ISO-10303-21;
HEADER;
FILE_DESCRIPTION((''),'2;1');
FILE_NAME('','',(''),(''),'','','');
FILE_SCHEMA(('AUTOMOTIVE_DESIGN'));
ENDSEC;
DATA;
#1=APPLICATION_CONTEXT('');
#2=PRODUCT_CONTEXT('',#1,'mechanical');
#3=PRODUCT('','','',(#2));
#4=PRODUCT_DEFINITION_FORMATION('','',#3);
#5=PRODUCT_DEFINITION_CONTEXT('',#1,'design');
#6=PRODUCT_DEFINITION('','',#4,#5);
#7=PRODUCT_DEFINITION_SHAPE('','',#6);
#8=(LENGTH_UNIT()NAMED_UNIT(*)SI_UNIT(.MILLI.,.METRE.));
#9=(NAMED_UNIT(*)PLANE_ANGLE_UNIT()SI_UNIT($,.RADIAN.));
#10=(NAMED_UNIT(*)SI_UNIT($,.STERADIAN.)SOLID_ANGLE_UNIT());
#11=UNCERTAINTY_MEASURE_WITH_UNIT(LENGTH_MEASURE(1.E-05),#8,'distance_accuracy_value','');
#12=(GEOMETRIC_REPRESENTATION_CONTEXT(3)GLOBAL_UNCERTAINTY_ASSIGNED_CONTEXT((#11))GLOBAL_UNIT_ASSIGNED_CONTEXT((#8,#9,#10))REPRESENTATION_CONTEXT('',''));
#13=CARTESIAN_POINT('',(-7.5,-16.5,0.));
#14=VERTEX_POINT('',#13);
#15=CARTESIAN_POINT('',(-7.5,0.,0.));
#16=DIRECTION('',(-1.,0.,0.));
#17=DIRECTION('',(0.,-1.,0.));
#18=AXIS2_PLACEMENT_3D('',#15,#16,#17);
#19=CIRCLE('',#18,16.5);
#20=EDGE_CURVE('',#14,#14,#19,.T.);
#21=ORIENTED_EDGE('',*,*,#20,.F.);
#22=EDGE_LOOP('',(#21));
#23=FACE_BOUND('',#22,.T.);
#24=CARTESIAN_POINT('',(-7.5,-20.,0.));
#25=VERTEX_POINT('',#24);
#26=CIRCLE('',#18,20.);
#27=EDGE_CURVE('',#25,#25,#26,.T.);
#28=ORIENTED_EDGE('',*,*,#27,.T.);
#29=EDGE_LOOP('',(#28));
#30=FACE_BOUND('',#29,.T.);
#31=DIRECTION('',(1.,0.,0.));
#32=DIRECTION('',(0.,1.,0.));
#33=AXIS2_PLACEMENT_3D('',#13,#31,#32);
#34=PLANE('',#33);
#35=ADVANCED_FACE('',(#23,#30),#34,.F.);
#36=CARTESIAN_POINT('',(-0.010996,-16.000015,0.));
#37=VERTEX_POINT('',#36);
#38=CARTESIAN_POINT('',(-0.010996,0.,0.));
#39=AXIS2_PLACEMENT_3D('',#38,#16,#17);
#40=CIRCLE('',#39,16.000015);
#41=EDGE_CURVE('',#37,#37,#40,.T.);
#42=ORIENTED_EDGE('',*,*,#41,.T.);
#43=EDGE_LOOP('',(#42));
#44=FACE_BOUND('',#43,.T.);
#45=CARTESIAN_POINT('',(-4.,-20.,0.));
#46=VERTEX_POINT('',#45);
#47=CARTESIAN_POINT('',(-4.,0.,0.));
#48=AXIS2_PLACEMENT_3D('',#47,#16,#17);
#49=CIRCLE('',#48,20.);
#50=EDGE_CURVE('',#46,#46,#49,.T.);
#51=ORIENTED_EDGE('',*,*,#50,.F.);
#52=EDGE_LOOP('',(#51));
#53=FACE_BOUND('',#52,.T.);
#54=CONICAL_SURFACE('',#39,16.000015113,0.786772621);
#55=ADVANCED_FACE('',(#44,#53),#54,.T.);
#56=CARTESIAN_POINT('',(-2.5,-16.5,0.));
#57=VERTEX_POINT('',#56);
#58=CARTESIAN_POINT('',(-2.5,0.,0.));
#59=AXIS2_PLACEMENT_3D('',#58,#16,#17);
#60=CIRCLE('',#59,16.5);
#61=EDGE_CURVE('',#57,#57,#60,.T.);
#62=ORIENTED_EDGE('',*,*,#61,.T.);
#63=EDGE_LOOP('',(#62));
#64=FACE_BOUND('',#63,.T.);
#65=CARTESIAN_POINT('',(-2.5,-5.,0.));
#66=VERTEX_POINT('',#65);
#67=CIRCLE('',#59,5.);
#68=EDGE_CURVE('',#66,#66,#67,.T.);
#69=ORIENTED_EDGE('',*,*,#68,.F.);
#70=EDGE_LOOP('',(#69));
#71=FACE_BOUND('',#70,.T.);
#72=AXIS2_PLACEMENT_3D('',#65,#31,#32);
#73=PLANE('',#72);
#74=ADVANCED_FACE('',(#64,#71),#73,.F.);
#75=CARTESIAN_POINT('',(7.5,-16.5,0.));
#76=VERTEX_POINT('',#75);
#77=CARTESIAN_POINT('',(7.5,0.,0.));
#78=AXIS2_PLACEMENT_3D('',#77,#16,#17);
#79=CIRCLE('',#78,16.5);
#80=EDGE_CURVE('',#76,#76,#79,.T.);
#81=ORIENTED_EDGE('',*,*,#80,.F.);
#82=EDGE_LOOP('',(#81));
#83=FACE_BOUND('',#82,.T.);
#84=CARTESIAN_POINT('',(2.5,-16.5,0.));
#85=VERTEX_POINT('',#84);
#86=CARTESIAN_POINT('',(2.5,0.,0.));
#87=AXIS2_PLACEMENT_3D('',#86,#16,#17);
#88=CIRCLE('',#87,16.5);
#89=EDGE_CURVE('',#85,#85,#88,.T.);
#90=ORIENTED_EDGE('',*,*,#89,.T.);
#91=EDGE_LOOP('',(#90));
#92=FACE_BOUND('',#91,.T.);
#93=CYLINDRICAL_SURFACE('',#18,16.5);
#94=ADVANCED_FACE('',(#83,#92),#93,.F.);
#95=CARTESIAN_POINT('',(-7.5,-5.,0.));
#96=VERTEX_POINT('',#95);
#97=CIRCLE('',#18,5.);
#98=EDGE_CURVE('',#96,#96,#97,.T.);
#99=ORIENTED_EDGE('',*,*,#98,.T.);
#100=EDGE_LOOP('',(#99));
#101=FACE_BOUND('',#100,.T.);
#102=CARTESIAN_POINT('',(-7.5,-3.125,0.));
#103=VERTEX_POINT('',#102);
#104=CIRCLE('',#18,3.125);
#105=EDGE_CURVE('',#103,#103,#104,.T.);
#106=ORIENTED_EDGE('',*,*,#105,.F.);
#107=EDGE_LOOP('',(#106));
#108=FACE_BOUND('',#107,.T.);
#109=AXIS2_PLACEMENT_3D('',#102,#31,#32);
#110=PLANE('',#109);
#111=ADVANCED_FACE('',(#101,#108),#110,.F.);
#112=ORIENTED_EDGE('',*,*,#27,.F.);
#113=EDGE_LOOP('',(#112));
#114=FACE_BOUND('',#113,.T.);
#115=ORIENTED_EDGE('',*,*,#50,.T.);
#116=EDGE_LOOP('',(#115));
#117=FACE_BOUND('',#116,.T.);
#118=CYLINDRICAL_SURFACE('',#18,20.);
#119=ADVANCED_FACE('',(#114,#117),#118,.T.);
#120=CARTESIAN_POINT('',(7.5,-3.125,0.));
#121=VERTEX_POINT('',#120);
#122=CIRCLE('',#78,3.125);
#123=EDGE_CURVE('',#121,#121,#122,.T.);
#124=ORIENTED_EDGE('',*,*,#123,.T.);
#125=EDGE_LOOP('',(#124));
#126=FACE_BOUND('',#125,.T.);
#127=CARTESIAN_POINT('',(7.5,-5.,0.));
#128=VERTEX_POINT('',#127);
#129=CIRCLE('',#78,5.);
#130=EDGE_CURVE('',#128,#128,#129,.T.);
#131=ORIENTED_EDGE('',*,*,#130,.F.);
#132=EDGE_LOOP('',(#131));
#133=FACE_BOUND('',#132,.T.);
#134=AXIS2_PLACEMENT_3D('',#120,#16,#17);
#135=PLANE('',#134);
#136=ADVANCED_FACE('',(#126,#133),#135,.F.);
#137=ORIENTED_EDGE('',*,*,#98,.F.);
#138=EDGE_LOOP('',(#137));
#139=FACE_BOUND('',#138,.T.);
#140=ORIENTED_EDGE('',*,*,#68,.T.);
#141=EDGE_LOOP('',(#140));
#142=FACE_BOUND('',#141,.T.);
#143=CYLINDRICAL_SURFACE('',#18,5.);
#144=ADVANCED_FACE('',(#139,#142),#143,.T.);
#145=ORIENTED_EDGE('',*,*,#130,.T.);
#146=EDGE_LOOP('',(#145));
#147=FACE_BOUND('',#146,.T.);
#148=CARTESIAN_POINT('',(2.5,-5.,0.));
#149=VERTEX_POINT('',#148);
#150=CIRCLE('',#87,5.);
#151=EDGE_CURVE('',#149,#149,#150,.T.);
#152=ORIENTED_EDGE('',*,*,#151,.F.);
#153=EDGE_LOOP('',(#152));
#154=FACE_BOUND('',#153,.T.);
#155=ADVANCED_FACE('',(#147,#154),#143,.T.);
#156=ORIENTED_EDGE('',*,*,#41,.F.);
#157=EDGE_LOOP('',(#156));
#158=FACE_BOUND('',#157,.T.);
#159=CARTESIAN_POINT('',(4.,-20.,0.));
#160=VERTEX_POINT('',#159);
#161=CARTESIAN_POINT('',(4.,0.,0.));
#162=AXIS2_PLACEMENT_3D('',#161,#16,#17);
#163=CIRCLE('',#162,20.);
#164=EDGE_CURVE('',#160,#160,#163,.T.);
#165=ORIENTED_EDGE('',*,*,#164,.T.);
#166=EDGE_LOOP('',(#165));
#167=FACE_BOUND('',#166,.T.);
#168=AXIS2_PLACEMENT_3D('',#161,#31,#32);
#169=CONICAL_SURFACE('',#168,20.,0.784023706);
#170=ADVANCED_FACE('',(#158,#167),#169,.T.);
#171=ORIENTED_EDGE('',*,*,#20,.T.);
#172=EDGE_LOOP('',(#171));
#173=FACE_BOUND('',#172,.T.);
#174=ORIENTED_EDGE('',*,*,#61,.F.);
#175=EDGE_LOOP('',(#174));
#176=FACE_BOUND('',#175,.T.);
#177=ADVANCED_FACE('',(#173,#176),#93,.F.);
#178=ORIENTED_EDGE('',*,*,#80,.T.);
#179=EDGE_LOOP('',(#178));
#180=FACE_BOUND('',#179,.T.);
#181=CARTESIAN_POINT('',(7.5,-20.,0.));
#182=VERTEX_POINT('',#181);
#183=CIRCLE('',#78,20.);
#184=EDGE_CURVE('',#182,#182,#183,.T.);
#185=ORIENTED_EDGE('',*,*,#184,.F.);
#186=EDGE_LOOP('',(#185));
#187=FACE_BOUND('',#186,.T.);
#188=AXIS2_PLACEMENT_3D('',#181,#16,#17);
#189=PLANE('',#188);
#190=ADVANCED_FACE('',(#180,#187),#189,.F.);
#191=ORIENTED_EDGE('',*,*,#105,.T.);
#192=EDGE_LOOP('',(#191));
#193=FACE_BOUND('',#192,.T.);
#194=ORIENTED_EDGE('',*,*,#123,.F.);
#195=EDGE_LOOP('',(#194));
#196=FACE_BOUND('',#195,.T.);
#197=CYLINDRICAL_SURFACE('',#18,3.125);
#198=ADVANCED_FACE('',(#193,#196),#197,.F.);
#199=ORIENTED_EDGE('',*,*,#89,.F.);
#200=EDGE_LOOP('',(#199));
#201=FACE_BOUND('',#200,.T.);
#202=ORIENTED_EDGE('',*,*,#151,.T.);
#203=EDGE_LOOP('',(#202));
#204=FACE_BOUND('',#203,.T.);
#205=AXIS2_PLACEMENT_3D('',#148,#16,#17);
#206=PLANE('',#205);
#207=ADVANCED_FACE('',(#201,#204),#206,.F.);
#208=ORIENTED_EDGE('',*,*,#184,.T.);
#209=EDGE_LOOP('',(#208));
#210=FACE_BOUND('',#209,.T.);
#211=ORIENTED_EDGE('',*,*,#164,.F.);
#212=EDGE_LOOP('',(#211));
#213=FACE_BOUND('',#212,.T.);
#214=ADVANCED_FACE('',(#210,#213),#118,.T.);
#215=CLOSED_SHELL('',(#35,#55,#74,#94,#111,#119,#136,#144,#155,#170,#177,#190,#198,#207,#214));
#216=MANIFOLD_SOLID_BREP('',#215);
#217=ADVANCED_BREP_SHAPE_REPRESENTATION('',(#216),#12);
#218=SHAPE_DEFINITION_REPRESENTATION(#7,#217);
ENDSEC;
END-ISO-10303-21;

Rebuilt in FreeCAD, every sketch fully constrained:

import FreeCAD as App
import Part
import Sketcher
Q = App.Units.Quantity


def add_polygon(sketch, points):
    """Adds a closed chain of lines whose ends are joined by coincident constraints."""
    first, n = sketch.GeometryCount, len(points)
    for a, b in zip(points, points[1:] + points[:1]):
        sketch.addGeometry(Part.LineSegment(App.Vector(*a, 0), App.Vector(*b, 0)), False)
    for i in range(n):
        sketch.addConstraint(Sketcher.Constraint("Coincident", first + i, 2, first + (i + 1) % n, 1))

doc = App.newDocument("Part")
body = doc.addObject("PartDesign::Body", "Body")

sketch1 = body.newObject("Sketcher::SketchObject", "Sketch")
sketch1.AttachmentSupport = (doc.getObject("XY_Plane"), [""])
sketch1.MapMode = "FlatFace"
add_polygon(sketch1, [(-7.5, 3.1), (7.5, 3.1), (7.5, 5), (2.5, 5), (2.5, 16.5), (7.5, 16.5), (7.5, 20), (4, 20), (0, 16), (-4, 20), (-7.5, 20), (-7.5, 16.5), (-2.5, 16.5), (-2.5, 5), (-7.5, 5)])
sketch1.addConstraint([
    Sketcher.Constraint("Horizontal", 0),
    Sketcher.Constraint("Vertical", 1),
    Sketcher.Constraint("Horizontal", 2),
    Sketcher.Constraint("Vertical", 3),
    Sketcher.Constraint("Horizontal", 4),
    Sketcher.Constraint("Vertical", 5),
    Sketcher.Constraint("Horizontal", 6),
    Sketcher.Constraint("Horizontal", 9),
    Sketcher.Constraint("Vertical", 10),
    Sketcher.Constraint("Horizontal", 11),
    Sketcher.Constraint("Vertical", 12),
    Sketcher.Constraint("Horizontal", 13),
    Sketcher.Constraint("Vertical", 14),
    Sketcher.Constraint("Symmetric", 6, 2, 8, 2, -2),
    Sketcher.Constraint("Symmetric", 4, 2, 10, 2, -2),
    Sketcher.Constraint("Symmetric", 2, 2, 12, 2, -2),
    Sketcher.Constraint("Perpendicular", 7, 8),
    Sketcher.Constraint("Vertical", 1, 2, 4, 2),
    Sketcher.Constraint("Vertical", 10, 2, 13, 2),
    Sketcher.Constraint("Equal", 9, 5),
    Sketcher.Constraint("DistanceX", 0, 1, 0, 2, Q("15 mm")),
    Sketcher.Constraint("DistanceX", 2, 2, 2, 1, Q("5 mm")),
    Sketcher.Constraint("DistanceX", 6, 2, 6, 1, Q("3.5 mm")),
    Sketcher.Constraint("DistanceY", 3, 1, 3, 2, Q("11.5 mm")),
    Sketcher.Constraint("DistanceY", -1, 1, 1, 2, Q("5 mm")),
    Sketcher.Constraint("DistanceY", 1, 1, 1, 2, Q("1.875 mm")),
    Sketcher.Constraint("Distance", 7, Q("5.664624 mm")),
])
revolution = body.newObject("PartDesign::Revolution", "Revolution")
revolution.Profile = sketch1
revolution.ReferenceAxis = (sketch1, ["H_Axis"])
revolution.Angle = 180

sketch2 = body.newObject("Sketcher::SketchObject", "Sketch001")
sketch2.AttachmentSupport = (doc.getObject("XY_Plane"), [""])
sketch2.MapMode = "FlatFace"
add_polygon(sketch2, [(-7.5, 3.1), (7.5, 3.1), (7.5, 5), (2.5, 5), (2.5, 16.5), (7.5, 16.5), (7.5, 20), (4, 20), (0, 16), (-4, 20), (-7.5, 20), (-7.5, 16.5), (-2.5, 16.5), (-2.5, 5), (-7.5, 5)])
sketch2.addConstraint([
    Sketcher.Constraint("Horizontal", 0),
    Sketcher.Constraint("Vertical", 1),
    Sketcher.Constraint("Horizontal", 2),
    Sketcher.Constraint("Vertical", 3),
    Sketcher.Constraint("Horizontal", 4),
    Sketcher.Constraint("Vertical", 5),
    Sketcher.Constraint("Horizontal", 6),
    Sketcher.Constraint("Horizontal", 9),
    Sketcher.Constraint("Vertical", 10),
    Sketcher.Constraint("Horizontal", 11),
    Sketcher.Constraint("Vertical", 12),
    Sketcher.Constraint("Horizontal", 13),
    Sketcher.Constraint("Vertical", 14),
    Sketcher.Constraint("Symmetric", 6, 2, 8, 2, -2),
    Sketcher.Constraint("Symmetric", 4, 2, 10, 2, -2),
    Sketcher.Constraint("Symmetric", 2, 2, 12, 2, -2),
    Sketcher.Constraint("Perpendicular", 7, 8),
    Sketcher.Constraint("Vertical", 1, 2, 4, 2),
    Sketcher.Constraint("Vertical", 10, 2, 13, 2),
    Sketcher.Constraint("Equal", 9, 5),
    Sketcher.Constraint("DistanceX", 0, 1, 0, 2, Q("15 mm")),
    Sketcher.Constraint("DistanceX", 2, 2, 2, 1, Q("5 mm")),
    Sketcher.Constraint("DistanceX", 6, 2, 6, 1, Q("3.5 mm")),
    Sketcher.Constraint("DistanceY", 3, 1, 3, 2, Q("11.5 mm")),
    Sketcher.Constraint("DistanceY", -1, 1, 1, 2, Q("5 mm")),
    Sketcher.Constraint("DistanceY", 1, 1, 1, 2, Q("1.875 mm")),
    Sketcher.Constraint("Distance", 7, Q("5.664624 mm")),
])
revolution2 = body.newObject("PartDesign::Revolution", "Revolution001")
revolution2.Profile = sketch2
revolution2.ReferenceAxis = (sketch2, ["H_Axis"])
revolution2.Angle = 180
revolution2.Reversed = True

doc.recompute()
